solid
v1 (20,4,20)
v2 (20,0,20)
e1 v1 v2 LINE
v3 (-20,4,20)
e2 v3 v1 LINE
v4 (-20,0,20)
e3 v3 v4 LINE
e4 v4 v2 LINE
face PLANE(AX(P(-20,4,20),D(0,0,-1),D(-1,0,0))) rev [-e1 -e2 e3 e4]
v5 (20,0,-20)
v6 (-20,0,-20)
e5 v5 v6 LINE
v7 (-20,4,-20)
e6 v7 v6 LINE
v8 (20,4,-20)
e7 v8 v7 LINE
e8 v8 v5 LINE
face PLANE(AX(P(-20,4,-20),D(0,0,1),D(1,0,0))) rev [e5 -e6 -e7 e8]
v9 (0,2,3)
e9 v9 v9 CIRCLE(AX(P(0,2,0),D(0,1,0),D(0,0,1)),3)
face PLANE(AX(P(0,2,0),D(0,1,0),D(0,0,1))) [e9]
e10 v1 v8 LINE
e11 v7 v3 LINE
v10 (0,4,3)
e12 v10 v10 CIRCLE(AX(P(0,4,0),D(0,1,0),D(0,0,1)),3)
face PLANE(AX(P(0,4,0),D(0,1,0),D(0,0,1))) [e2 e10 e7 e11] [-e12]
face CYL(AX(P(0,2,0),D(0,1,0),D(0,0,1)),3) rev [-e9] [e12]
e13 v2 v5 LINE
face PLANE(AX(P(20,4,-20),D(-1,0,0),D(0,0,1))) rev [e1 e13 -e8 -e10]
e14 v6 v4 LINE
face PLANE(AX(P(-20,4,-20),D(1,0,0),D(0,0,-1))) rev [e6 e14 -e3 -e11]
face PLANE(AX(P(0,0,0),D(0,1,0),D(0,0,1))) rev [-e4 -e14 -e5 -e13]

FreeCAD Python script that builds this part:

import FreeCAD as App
import Part
import Sketcher

V = App.Vector


def add_polygon(sketch, points):
    """Adds a closed chain of lines whose ends are joined by coincident constraints."""
    first, n = sketch.GeometryCount, len(points)
    for a, b in zip(points, points[1:] + points[:1]):
        sketch.addGeometry(Part.LineSegment(App.Vector(*a, 0), App.Vector(*b, 0)), False)
    for i in range(n):
        sketch.addConstraint(Sketcher.Constraint("Coincident", first + i, 2, first + (i + 1) % n, 1))

doc = App.newDocument("Part")
params = doc.addObject("Spreadsheet::Sheet", "Params")
for row, (alias, value) in enumerate([
    ("sketch1_width", "40 mm"),
    ("pad1_length", "4 mm"),
    ("sketch2_diameter", "6 mm"),
    ("pocket1_length", "2 mm"),
], start=1):
    params.set(f"A{row}", alias)
    params.set(f"B{row}", "=" + value)
    params.setAlias(f"B{row}", alias)

body = doc.addObject("PartDesign::Body", "Body")

# Sketch on XZ plane
sketch1 = body.newObject("Sketcher::SketchObject", "Sketch")
sketch1.AttachmentSupport = (doc.getObject("XZ_Plane"), [""])
sketch1.MapMode = "FlatFace"
add_polygon(sketch1, [(-20, -20), (-20, 20), (20, 20), (20, -20)])  # lines 0-3
sketch1.addConstraint(Sketcher.Constraint("Vertical", 0))
sketch1.addConstraint(Sketcher.Constraint("Horizontal", 1))
sketch1.addConstraint(Sketcher.Constraint("Vertical", 2))
sketch1.addConstraint(Sketcher.Constraint("Horizontal", 3))
sketch1.addConstraint(Sketcher.Constraint("Symmetric", 0, 2, 2, 2, -1, 1))
sketch1.addConstraint(Sketcher.Constraint("Equal", 3, 0))
sketch1.addConstraint(Sketcher.Constraint("DistanceX", 1, 1, 1, 2, 40.0))
sketch1.setExpression("Constraints[10]", "Params.sketch1_width")
pad1 = body.newObject("PartDesign::Pad", "Pad")
pad1.Profile = sketch1
pad1.setExpression("Length", "Params.pad1_length")
pad1.Reversed = True

# Sketch on XZ plane
sketch2 = body.newObject("Sketcher::SketchObject", "Sketch001")
sketch2.AttachmentSupport = (doc.getObject("XZ_Plane"), [""])
sketch2.MapMode = "FlatFace"
sketch2.AttachmentOffset = App.Placement(V(0, 0, -4), App.Rotation())
sketch2.addGeometry(Part.Circle(V(0, 0, 0), V(0, 0, 1), 3), False)
sketch2.addConstraint(Sketcher.Constraint("Coincident", 0, 3, -1, 1))
sketch2.addConstraint(Sketcher.Constraint("Diameter", 0, 6.0))
sketch2.setExpression("Constraints[1]", "Params.sketch2_diameter")
pocket1 = body.newObject("PartDesign::Pocket", "Pocket")
pocket1.Profile = sketch2
pocket1.setExpression("Length", "Params.pocket1_length")
pocket1.Reversed = True

doc.recompute()
